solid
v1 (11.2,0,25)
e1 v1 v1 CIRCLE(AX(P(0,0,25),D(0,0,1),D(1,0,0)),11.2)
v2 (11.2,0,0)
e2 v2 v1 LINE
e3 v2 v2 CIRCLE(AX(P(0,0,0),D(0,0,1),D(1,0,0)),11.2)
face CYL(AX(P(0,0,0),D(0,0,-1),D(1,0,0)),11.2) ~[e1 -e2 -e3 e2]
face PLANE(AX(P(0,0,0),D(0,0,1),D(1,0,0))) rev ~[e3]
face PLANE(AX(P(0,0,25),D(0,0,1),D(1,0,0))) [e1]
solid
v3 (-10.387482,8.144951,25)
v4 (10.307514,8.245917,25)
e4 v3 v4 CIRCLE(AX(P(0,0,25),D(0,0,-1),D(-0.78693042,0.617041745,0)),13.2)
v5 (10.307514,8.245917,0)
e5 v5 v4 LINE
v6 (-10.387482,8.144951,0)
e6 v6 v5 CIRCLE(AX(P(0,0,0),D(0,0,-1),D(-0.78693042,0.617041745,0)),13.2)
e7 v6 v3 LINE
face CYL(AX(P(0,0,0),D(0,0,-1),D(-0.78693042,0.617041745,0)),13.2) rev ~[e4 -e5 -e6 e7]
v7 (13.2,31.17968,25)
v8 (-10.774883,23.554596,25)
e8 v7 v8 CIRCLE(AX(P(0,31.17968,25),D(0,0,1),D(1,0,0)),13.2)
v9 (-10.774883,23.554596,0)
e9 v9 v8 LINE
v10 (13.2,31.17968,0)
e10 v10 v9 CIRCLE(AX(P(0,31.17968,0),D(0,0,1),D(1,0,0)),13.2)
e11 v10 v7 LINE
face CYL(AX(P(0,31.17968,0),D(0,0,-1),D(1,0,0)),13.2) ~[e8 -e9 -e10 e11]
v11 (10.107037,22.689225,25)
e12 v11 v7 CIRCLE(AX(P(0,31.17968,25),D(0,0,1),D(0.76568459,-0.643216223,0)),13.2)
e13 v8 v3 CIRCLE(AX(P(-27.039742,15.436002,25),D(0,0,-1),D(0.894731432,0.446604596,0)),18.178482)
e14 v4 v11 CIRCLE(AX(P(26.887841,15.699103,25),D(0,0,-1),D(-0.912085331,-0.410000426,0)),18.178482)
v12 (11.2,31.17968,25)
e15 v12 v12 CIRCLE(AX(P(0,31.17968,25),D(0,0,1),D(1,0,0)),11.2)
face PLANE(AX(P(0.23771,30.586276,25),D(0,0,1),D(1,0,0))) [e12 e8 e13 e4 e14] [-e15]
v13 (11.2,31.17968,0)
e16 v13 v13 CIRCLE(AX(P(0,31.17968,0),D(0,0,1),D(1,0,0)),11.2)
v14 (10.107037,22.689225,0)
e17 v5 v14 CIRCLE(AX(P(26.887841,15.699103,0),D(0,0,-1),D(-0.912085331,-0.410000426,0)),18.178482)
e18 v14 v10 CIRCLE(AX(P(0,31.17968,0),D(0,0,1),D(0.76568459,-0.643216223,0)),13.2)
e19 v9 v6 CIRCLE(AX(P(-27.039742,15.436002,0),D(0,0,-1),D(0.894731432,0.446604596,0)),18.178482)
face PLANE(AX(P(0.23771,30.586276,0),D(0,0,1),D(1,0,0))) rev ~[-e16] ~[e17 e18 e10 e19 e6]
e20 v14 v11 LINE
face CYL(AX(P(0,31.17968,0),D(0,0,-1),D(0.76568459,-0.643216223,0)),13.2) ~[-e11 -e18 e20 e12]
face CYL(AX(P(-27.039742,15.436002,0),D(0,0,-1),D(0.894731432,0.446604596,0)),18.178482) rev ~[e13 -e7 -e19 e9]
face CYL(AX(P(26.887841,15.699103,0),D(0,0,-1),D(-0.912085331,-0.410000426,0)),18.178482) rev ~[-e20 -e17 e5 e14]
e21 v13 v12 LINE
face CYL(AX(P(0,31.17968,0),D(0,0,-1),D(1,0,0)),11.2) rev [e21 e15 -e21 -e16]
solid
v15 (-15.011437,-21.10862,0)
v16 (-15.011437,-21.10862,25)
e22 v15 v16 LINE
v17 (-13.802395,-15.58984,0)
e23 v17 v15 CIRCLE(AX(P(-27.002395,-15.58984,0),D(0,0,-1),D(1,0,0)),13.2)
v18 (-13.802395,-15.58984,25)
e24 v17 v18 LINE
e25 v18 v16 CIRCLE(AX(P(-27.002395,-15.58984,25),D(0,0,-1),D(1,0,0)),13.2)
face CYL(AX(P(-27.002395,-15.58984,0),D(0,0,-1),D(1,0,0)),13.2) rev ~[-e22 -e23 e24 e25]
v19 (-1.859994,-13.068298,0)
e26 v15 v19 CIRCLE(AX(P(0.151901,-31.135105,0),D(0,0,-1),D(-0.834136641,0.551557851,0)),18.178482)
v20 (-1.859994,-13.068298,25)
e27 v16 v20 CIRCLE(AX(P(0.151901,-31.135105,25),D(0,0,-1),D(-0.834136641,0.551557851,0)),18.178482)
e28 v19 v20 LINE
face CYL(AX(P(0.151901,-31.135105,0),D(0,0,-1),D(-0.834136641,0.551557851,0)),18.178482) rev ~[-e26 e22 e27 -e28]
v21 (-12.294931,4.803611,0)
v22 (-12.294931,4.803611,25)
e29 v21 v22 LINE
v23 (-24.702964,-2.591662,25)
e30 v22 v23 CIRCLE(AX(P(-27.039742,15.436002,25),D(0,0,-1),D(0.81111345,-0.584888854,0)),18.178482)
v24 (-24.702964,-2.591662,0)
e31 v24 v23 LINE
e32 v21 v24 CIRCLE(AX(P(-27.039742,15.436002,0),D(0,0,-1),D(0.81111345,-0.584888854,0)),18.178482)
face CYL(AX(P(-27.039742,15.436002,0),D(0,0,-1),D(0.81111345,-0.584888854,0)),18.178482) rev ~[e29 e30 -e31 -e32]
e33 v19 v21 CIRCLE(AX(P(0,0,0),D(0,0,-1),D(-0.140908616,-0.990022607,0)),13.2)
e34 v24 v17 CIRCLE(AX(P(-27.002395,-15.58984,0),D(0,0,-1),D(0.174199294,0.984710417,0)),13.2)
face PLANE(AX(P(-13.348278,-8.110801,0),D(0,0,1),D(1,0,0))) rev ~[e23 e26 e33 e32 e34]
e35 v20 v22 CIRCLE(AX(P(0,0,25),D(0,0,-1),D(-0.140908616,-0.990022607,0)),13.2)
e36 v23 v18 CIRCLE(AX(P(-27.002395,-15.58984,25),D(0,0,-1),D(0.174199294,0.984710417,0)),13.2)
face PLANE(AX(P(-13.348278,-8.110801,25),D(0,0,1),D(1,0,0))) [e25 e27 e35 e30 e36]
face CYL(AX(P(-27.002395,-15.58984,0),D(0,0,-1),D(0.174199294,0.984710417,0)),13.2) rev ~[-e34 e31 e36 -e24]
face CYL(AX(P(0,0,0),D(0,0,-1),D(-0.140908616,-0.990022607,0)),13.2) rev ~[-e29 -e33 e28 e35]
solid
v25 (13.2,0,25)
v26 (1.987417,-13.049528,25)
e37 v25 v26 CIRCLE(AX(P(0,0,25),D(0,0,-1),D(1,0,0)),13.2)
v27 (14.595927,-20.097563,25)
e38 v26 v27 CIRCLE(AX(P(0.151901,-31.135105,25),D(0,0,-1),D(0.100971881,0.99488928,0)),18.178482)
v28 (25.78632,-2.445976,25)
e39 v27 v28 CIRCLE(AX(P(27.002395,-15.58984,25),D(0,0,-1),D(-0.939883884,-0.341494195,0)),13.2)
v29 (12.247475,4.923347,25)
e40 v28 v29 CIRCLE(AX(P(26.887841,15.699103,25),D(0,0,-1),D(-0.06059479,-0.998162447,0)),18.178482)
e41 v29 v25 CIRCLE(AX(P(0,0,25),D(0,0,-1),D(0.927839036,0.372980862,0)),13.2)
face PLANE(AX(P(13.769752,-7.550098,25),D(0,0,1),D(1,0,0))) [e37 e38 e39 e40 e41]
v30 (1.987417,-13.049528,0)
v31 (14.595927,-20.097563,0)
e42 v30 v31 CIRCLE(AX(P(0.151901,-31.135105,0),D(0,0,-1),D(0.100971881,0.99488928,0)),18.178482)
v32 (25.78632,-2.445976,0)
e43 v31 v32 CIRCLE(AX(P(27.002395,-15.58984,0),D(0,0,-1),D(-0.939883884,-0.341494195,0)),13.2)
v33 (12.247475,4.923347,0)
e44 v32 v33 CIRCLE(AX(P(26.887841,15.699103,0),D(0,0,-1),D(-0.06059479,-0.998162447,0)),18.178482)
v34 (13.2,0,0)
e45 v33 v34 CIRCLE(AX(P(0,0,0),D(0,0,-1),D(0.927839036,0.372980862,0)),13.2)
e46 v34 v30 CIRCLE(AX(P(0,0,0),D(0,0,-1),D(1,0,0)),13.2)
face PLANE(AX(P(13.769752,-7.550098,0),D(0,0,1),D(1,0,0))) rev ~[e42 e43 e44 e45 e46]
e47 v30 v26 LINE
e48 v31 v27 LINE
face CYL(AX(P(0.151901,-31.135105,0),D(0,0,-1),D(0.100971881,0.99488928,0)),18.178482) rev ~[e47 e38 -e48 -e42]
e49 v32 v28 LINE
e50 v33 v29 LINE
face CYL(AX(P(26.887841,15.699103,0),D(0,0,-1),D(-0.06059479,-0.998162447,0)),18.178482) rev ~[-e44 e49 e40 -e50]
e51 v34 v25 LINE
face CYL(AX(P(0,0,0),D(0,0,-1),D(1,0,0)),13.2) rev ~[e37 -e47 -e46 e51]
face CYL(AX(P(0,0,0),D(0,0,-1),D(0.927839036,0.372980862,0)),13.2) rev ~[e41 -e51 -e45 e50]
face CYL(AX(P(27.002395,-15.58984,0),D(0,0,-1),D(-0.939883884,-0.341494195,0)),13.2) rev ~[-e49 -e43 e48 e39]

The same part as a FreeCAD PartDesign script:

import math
import FreeCAD as App
import Part
import Sketcher
from FreeCAD import Vector

doc = App.newDocument("Part")
body = doc.addObject("PartDesign::Body", "Body")

sketch1 = doc.addObject("Sketcher::SketchObject", "Sketch")
body.addObject(sketch1)
sketch1.AttachmentSupport = (doc.XY_Plane, [""])
sketch1.MapMode = "FlatFace"
sketch1.addGeometry([
    Part.ArcOfCircle(Part.Circle(Vector(0, 31, 0), Vector(0, 0, 1), 13), math.radians(0), math.radians(215)),
    Part.ArcOfCircle(Part.Circle(Vector(-27, 15, 0), Vector(0, 0, 1), 18), math.radians(-24), math.radians(27)),
    Part.ArcOfCircle(Part.Circle(Vector(0, 0, 0), Vector(0, 0, 1), 13), math.radians(39), math.radians(142)),
    Part.ArcOfCircle(Part.Circle(Vector(27, 16, 0), Vector(0, 0, 1), 18), math.radians(157), math.radians(204)),
    Part.ArcOfCircle(Part.Circle(Vector(0, 31, 0), Vector(0, 0, 1), 13), math.radians(-40), math.radians(0)),
    Part.Circle(Vector(0, 31, 0), Vector(0, 0, 1), 11),
], False)
sketch1.addConstraint([
    Sketcher.Constraint("Coincident", 0, 2, 1, 2),
    Sketcher.Constraint("Coincident", 1, 1, 2, 2),
    Sketcher.Constraint("Coincident", 2, 1, 3, 2),
    Sketcher.Constraint("Coincident", 3, 1, 4, 1),
    Sketcher.Constraint("Tangent", 4, 2, 0, 1),
    Sketcher.Constraint("Coincident", 2, 3, -1, 1),
    Sketcher.Constraint("Coincident", 5, 3, 0, 3),
    Sketcher.Constraint("Equal", 0, 2),
    Sketcher.Constraint("Equal", 1, 3),
    Sketcher.Constraint("Equal", 2, 4),
    Sketcher.Constraint("PointOnObject", 0, 3, -2),
    Sketcher.Constraint("Horizontal", 5, 3, 4, 2),
    Sketcher.Constraint("Diameter", 5, 22.4),
    Sketcher.Constraint("Radius", 0, 13.2),
    Sketcher.Constraint("Radius", 1, 18.178482),
    Sketcher.Constraint("DistanceY", 1, 3, 3, 3, 0.263101),
    Sketcher.Constraint("DistanceX", 0, 2, 1, 1, 0.387401),
    Sketcher.Constraint("DistanceY", -1, 1, 0, 3, 31.17968),
    Sketcher.Constraint("DistanceX", -1, 1, 3, 3, 26.887841),
    Sketcher.Constraint("DistanceX", 1, 1, -1, 1, 10.387482),
])
pad1 = doc.addObject("PartDesign::Pad", "Pad")
body.addObject(pad1)
pad1.Profile = sketch1
pad1.Length = 25
body2 = doc.addObject("PartDesign::Body", "Body001")

sketch2 = doc.addObject("Sketcher::SketchObject", "Sketch001")
body2.addObject(sketch2)
sketch2.AttachmentSupport = (doc.getObject("XY_Plane001"), [""])
sketch2.MapMode = "FlatFace"
sketch2.addGeometry([
    Part.ArcOfCircle(Part.Circle(Vector(0, -31, 0), Vector(0, 0, 1), 18), math.radians(96), math.radians(147)),
    Part.ArcOfCircle(Part.Circle(Vector(0, 0, 0), Vector(0, 0, 1), 13), math.radians(159), math.radians(262)),
    Part.ArcOfCircle(Part.Circle(Vector(-27, 15, 0), Vector(0, 0, 1), 18), math.radians(-83), math.radians(-36)),
    Part.ArcOfCircle(Part.Circle(Vector(-27, -16, 0), Vector(0, 0, 1), 13), math.radians(0), math.radians(80)),
    Part.ArcOfCircle(Part.Circle(Vector(-27, -16, 0), Vector(0, 0, 1), 13), math.radians(-25), math.radians(0)),
], False)
sketch2.addConstraint([
    Sketcher.Constraint("Coincident", 0, 1, 1, 2),
    Sketcher.Constraint("Coincident", 1, 1, 2, 2),
    Sketcher.Constraint("Coincident", 2, 1, 3, 2),
    Sketcher.Constraint("Tangent", 3, 1, 4, 2),
    Sketcher.Constraint("Coincident", 4, 1, 0, 2),
    Sketcher.Constraint("Coincident", 1, 3, -1, 1),
    Sketcher.Constraint("Equal", 0, 2),
    Sketcher.Constraint("Equal", 1, 3),
    Sketcher.Constraint("Equal", 3, 4),
    Sketcher.Constraint("Horizontal", 4, 3, 3, 1),
    Sketcher.Constraint("Radius", 1, 13.2),
    Sketcher.Constraint("Radius", 0, 18.178482),
    Sketcher.Constraint("DistanceX", -1, 1, 0, 3, 0.151901),
    Sketcher.Constraint("DistanceY", 0, 1, -1, 1, 13.068298),
    Sketcher.Constraint("DistanceX", 4, 3, 0, 1, 25.142401),
    Sketcher.Constraint("DistanceY", 0, 1, 2, 3, 28.504301),
    Sketcher.Constraint("DistanceY", 3, 3, -1, 1, 15.58984),
    Sketcher.Constraint("DistanceX", 1, 1, -1, 1, 12.294931),
])
pad2 = doc.addObject("PartDesign::Pad", "Pad001")
body2.addObject(pad2)
pad2.Profile = sketch2
pad2.Length = 25
body3 = doc.addObject("PartDesign::Body", "Body002")

sketch3 = doc.addObject("Sketcher::SketchObject", "Sketch002")
body3.addObject(sketch3)
sketch3.AttachmentSupport = (doc.getObject("XY_Plane002"), [""])
sketch3.MapMode = "FlatFace"
sketch3.addGeometry(Part.Circle(Vector(0, 0, 0), Vector(0, 0, 1), 11), False)
sketch3.addConstraint([
    Sketcher.Constraint("Coincident", 0, 3, -1, 1),
    Sketcher.Constraint("Diameter", 0, 22.4),
])
pad3 = doc.addObject("PartDesign::Pad", "Pad002")
body3.addObject(pad3)
pad3.Profile = sketch3
pad3.Length = 25
body4 = doc.addObject("PartDesign::Body", "Body003")

sketch4 = doc.addObject("Sketcher::SketchObject", "Sketch003")
body4.addObject(sketch4)
sketch4.AttachmentSupport = (doc.getObject("XY_Plane003"), [""])
sketch4.MapMode = "FlatFace"
sketch4.addGeometry([
    Part.ArcOfCircle(Part.Circle(Vector(0, 0, 0), Vector(0, 0, 1), 13), math.radians(0), math.radians(22)),
    Part.ArcOfCircle(Part.Circle(Vector(0, 0, 0), Vector(0, 0, 1), 13), math.radians(-81), math.radians(0)),
    Part.ArcOfCircle(Part.Circle(Vector(0, -31, 0), Vector(0, 0, 1), 18), math.radians(37), math.radians(84)),
    Part.ArcOfCircle(Part.Circle(Vector(27, -16, 0), Vector(0, 0, 1), 13), math.radians(95), math.radians(200)),
    Part.ArcOfCircle(Part.Circle(Vector(27, 16, 0), Vector(0, 0, 1), 18), math.radians(-144), math.radians(-93)),
], False)
sketch4.addConstraint([
    Sketcher.Constraint("Tangent", 0, 1, 1, 2),
    Sketcher.Constraint("Coincident", 1, 1, 2, 2),
    Sketcher.Constraint("Coincident", 2, 1, 3, 2),
    Sketcher.Constraint("Coincident", 3, 1, 4, 2),
    Sketcher.Constraint("Coincident", 4, 1, 0, 2),
    Sketcher.Constraint("Coincident", 0, 3, -1, 1),
    Sketcher.Constraint("Equal", 0, 1),
    Sketcher.Constraint("Equal", 1, 3),
    Sketcher.Constraint("Equal", 2, 4),
    Sketcher.Constraint("PointOnObject", 0, 1, -1),
    Sketcher.Constraint("Radius", 0, 13.2),
    Sketcher.Constraint("Radius", 2, 18.178482),
    Sketcher.Constraint("DistanceX", -1, 1, 2, 3, 0.151901),
    Sketcher.Constraint("DistanceY", 3, 3, -1, 1, 15.58984),
    Sketcher.Constraint("DistanceX", -1, 1, 4, 3, 26.887841),
    Sketcher.Constraint("DistanceX", -1, 1, 3, 1, 25.78632),
    Sketcher.Constraint("DistanceX", 1, 1, 2, 1, 12.608511),
    Sketcher.Constraint("DistanceY", 2, 3, 2, 1, 11.037542),
])
pad4 = doc.addObject("PartDesign::Pad", "Pad003")
body4.addObject(pad4)
pad4.Profile = sketch4
pad4.Length = 25

doc.recompute()
